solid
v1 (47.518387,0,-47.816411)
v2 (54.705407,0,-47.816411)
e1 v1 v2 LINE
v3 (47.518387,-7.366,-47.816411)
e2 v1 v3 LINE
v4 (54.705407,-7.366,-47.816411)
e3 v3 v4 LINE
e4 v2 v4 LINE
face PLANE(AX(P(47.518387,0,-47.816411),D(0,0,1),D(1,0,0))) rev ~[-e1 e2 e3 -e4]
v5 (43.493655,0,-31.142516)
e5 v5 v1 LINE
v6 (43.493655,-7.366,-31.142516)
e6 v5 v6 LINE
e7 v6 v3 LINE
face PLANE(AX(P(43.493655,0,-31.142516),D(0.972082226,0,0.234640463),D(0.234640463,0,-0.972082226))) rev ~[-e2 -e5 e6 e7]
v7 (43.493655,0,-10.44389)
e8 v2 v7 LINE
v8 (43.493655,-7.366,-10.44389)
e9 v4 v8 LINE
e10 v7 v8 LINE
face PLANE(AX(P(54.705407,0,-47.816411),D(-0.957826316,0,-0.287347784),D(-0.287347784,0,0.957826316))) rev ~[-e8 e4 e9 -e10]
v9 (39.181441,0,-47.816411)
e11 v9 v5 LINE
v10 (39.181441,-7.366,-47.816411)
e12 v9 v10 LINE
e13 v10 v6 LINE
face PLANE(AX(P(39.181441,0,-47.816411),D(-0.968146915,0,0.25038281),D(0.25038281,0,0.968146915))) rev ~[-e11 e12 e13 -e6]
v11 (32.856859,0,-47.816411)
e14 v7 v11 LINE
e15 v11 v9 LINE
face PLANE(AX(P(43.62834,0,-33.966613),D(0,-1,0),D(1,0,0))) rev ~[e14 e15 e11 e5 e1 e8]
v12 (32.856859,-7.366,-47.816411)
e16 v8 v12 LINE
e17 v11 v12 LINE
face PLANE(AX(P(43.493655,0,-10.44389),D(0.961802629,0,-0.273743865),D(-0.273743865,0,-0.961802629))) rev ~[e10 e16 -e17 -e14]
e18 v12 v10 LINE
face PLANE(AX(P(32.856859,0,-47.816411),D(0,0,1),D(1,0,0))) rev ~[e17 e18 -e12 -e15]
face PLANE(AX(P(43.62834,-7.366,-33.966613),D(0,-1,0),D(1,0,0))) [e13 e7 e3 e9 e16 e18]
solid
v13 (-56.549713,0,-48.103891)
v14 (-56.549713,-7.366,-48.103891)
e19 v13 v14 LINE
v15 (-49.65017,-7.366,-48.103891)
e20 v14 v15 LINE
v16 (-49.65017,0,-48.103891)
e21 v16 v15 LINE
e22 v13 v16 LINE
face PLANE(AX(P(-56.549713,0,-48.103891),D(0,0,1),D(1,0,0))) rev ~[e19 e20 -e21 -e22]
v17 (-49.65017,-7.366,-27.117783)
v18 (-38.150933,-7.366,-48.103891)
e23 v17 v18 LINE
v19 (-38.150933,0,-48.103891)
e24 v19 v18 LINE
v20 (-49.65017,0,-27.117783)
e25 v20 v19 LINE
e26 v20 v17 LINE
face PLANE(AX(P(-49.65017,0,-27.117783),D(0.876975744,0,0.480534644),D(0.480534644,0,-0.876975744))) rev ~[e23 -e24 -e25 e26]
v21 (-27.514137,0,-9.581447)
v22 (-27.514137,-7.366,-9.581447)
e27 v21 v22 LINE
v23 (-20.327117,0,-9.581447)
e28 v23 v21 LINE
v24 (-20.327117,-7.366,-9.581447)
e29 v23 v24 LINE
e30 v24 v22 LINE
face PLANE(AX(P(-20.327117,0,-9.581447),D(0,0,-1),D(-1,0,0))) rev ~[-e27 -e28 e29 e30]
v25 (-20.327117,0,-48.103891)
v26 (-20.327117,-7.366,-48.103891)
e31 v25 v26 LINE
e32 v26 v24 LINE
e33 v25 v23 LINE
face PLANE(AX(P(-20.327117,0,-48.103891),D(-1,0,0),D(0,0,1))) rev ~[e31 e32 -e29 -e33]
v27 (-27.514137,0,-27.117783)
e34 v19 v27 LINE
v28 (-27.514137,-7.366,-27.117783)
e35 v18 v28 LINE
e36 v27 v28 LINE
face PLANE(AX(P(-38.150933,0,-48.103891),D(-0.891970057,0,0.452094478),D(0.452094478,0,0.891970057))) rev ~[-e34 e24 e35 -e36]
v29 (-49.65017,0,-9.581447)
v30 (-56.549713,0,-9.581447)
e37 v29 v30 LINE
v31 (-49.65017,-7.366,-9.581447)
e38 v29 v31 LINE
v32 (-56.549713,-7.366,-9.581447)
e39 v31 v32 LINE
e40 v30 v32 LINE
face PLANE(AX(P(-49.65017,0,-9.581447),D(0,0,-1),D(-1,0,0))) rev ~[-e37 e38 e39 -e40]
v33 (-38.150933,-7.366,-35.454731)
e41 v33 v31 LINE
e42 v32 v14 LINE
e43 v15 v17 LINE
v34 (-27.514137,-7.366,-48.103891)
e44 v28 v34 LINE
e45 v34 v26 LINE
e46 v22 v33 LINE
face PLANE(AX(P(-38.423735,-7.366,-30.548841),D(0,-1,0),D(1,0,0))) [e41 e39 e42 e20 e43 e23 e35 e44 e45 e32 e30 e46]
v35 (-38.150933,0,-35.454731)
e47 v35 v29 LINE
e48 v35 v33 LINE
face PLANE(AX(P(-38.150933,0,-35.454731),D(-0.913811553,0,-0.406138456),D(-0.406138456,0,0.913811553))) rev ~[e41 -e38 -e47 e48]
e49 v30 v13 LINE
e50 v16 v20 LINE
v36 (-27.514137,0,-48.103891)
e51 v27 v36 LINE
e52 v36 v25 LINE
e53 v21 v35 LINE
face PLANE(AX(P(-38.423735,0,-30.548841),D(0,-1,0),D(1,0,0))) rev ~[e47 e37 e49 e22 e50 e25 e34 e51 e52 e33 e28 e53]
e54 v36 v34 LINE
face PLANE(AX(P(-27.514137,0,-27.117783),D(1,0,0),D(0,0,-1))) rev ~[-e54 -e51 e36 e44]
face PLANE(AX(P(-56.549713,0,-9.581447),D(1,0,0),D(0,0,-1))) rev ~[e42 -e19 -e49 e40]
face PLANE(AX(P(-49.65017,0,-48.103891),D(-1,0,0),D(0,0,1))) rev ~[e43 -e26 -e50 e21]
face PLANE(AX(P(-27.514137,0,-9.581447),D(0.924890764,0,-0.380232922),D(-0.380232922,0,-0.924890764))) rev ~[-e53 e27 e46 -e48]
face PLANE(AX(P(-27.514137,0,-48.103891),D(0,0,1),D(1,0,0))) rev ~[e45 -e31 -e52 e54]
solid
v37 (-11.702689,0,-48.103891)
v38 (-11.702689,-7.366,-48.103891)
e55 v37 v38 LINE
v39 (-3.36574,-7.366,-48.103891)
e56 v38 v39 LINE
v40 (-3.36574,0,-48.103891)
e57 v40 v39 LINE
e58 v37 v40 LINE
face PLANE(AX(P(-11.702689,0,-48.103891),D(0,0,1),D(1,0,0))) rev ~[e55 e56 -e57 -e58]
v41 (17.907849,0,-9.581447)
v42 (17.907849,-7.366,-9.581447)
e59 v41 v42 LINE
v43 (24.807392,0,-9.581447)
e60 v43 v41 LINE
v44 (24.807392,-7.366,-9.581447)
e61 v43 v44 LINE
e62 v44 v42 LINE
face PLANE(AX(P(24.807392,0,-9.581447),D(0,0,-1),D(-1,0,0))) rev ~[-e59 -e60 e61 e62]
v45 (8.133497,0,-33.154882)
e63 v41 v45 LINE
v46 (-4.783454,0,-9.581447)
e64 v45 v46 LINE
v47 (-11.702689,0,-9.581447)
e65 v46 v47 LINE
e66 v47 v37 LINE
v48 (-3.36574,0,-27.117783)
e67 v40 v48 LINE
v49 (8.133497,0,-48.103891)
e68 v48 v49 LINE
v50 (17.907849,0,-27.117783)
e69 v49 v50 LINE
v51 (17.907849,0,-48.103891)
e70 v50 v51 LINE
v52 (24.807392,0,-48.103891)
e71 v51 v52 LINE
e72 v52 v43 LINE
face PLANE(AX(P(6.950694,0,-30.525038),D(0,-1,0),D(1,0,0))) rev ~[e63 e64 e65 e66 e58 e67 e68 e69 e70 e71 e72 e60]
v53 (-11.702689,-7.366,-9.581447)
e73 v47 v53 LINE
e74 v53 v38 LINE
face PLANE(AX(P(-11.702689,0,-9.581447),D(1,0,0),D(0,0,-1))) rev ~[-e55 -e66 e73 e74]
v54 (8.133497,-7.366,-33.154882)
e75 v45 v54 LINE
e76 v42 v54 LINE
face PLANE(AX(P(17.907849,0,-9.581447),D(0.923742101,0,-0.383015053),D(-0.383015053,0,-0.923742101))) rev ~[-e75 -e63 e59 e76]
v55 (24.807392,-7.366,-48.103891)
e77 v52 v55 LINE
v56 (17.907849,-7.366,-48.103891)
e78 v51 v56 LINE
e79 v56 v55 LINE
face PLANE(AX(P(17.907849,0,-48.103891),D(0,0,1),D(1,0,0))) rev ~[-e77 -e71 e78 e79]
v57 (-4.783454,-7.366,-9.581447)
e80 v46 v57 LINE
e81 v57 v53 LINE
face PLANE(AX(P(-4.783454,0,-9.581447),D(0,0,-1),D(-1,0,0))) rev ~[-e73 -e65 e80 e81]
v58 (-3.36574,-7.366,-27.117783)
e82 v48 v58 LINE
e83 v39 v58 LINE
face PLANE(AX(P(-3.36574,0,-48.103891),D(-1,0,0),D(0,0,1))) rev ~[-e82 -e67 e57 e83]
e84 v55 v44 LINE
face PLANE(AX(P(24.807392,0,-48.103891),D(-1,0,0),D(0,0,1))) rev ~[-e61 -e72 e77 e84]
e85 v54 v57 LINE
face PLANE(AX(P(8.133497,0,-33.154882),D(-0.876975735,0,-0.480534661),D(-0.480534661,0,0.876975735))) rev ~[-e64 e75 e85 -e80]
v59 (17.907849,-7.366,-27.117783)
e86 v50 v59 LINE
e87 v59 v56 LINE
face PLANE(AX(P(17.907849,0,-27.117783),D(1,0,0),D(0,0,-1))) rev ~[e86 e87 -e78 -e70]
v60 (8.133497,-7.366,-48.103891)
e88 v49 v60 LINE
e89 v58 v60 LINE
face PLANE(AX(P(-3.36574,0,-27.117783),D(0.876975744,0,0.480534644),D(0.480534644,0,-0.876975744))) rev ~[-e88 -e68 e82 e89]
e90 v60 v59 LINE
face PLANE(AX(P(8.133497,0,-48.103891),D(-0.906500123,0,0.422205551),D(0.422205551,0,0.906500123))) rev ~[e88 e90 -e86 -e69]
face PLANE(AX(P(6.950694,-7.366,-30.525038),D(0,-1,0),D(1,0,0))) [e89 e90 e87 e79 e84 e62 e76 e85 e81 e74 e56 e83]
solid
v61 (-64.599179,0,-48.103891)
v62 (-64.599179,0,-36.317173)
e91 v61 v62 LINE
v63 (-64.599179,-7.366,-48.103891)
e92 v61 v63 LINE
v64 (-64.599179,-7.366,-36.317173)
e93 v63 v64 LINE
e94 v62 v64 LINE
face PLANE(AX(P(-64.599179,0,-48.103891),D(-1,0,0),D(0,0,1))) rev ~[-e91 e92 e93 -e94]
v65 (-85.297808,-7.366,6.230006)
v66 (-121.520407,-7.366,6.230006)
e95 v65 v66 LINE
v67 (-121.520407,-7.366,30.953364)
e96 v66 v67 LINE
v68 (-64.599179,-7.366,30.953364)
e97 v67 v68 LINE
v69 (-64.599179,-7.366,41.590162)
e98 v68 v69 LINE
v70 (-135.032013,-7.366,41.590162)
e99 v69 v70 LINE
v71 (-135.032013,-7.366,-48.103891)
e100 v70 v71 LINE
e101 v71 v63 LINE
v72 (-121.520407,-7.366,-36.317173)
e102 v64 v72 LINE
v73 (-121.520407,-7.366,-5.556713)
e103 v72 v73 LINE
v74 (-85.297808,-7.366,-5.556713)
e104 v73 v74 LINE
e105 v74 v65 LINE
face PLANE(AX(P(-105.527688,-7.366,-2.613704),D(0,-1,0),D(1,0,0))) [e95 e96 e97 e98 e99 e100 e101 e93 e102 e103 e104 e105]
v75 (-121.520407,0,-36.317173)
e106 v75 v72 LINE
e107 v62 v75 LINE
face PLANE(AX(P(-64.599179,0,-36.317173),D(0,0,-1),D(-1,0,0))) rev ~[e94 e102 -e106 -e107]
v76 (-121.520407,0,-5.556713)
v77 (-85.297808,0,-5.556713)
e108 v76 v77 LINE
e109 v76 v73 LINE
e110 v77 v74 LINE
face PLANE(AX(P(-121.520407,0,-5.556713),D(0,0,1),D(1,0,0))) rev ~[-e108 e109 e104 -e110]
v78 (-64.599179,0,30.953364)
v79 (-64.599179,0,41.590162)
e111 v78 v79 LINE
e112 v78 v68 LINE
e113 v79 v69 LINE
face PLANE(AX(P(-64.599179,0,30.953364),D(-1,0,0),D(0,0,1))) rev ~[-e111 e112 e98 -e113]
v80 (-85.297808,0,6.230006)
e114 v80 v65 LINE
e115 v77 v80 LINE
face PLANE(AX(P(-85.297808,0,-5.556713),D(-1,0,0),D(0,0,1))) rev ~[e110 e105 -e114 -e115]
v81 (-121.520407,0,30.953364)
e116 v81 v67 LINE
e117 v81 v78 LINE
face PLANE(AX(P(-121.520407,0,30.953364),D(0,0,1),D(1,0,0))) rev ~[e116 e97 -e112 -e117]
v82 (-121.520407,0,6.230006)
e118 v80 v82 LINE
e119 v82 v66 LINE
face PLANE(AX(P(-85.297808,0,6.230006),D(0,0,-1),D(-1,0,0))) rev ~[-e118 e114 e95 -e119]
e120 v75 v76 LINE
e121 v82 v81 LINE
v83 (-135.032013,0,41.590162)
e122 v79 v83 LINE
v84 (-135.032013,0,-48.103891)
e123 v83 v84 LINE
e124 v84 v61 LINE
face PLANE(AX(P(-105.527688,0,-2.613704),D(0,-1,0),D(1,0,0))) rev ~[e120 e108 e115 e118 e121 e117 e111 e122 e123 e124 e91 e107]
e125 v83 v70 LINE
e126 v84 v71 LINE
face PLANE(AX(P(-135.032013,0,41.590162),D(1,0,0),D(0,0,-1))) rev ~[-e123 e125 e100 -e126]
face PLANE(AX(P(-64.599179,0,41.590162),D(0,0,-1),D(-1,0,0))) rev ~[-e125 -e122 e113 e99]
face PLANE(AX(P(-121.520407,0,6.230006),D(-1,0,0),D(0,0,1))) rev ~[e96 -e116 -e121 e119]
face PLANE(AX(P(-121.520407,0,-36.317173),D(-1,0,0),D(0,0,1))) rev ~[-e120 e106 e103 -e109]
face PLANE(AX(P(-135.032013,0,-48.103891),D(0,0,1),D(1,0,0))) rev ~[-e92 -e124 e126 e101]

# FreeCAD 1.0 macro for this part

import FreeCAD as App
import Part
import Sketcher
from FreeCAD import Vector
Q = App.Units.Quantity


def add_polygon(sketch, points):
    """Adds a closed chain of lines whose ends are joined by coincident constraints."""
    first, n = sketch.GeometryCount, len(points)
    for a, b in zip(points, points[1:] + points[:1]):
        sketch.addGeometry(Part.LineSegment(App.Vector(*a, 0), App.Vector(*b, 0)), False)
    for i in range(n):
        sketch.addConstraint(Sketcher.Constraint("Coincident", first + i, 2, first + (i + 1) % n, 1))

doc = App.newDocument("Part")
body = doc.addObject("PartDesign::Body", "Body")
body.AllowCompound = True

sketch1 = body.newObject("Sketcher::SketchObject", "Sketch")
sketch1.AttachmentSupport = (doc.getObject("XZ_Plane"), [""])
sketch1.MapMode = "FlatFace"
add_polygon(sketch1, [(-65, 42), (-135, 42), (-135, -48), (-65, -48), (-65, -36), (-122, -36), (-122, -6), (-85, -6), (-85, 6), (-122, 6), (-122, 31), (-65, 31)])
add_polygon(sketch1, [(-50, -10), (-57, -10), (-57, -48), (-50, -48), (-50, -27), (-38, -48), (-28, -27), (-28, -48), (-20, -48), (-20, -10), (-28, -10), (-38, -35)])
add_polygon(sketch1, [(-5, -10), (-12, -10), (-12, -48), (-3, -48), (-3, -27), (8, -48), (18, -27), (18, -48), (25, -48), (25, -10), (18, -10), (8, -33)])
add_polygon(sketch1, [(43, -10), (33, -48), (39, -48), (43, -31), (48, -48), (55, -48)])
sketch1.addConstraint([
    Sketcher.Constraint("Horizontal", 0),
    Sketcher.Constraint("Vertical", 1),
    Sketcher.Constraint("Horizontal", 2),
    Sketcher.Constraint("Vertical", 3),
    Sketcher.Constraint("Horizontal", 4),
    Sketcher.Constraint("Vertical", 5),
    Sketcher.Constraint("Horizontal", 6),
    Sketcher.Constraint("Vertical", 7),
    Sketcher.Constraint("Horizontal", 8),
    Sketcher.Constraint("Vertical", 9),
    Sketcher.Constraint("Horizontal", 10),
    Sketcher.Constraint("Vertical", 11),
    Sketcher.Constraint("Horizontal", 12),
    Sketcher.Constraint("Vertical", 13),
    Sketcher.Constraint("Horizontal", 14),
    Sketcher.Constraint("Vertical", 15),
    Sketcher.Constraint("Vertical", 18),
    Sketcher.Constraint("Horizontal", 19),
    Sketcher.Constraint("Vertical", 20),
    Sketcher.Constraint("Horizontal", 21),
    Sketcher.Constraint("Horizontal", 24),
    Sketcher.Constraint("Vertical", 25),
    Sketcher.Constraint("Horizontal", 26),
    Sketcher.Constraint("Vertical", 27),
    Sketcher.Constraint("Vertical", 30),
    Sketcher.Constraint("Horizontal", 31),
    Sketcher.Constraint("Vertical", 32),
    Sketcher.Constraint("Horizontal", 33),
    Sketcher.Constraint("Horizontal", 37),
    Sketcher.Constraint("Horizontal", 40),
    Sketcher.Constraint("Parallel", 16, 28),
    Sketcher.Constraint("Parallel", 28, 35),
    Sketcher.Constraint("Horizontal", 2, 2, 13, 2),
    Sketcher.Constraint("Horizontal", 14, 2, 16, 2),
    Sketcher.Constraint("Horizontal", 15, 2, 17, 2),
    Sketcher.Constraint("Horizontal", 16, 2, 18, 2),
    Sketcher.Constraint("Horizontal", 12, 2, 20, 2),
    Sketcher.Constraint("Horizontal", 23, 2, 24, 2),
    Sketcher.Constraint("Horizontal", 19, 2, 25, 2),
    Sketcher.Constraint("Horizontal", 17, 2, 27, 2),
    Sketcher.Constraint("Horizontal", 26, 2, 28, 2),
    Sketcher.Constraint("Horizontal", 27, 2, 29, 2),
    Sketcher.Constraint("Horizontal", 28, 2, 30, 2),
    Sketcher.Constraint("Horizontal", 24, 2, 32, 2),
    Sketcher.Constraint("Horizontal", 37, 2, 39, 2),
    Sketcher.Constraint("Vertical", 5, 2, 8, 2),
    Sketcher.Constraint("Vertical", 3, 2, 10, 2),
    Sketcher.Constraint("Vertical", 18, 2, 21, 2),
    Sketcher.Constraint("Vertical", 16, 2, 22, 2),
    Sketcher.Constraint("Vertical", 15, 2, 23, 2),
    Sketcher.Constraint("Vertical", 30, 2, 33, 2),
    Sketcher.Constraint("Vertical", 28, 2, 34, 2),
    Sketcher.Constraint("Vertical", 38, 2, 41, 2),
    Sketcher.Constraint("Equal", 14, 31),
    Sketcher.Constraint("Equal", 21, 40),
    Sketcher.Constraint("Equal", 3, 7),
    Sketcher.Constraint("DistanceX", 6, 1, 6, 2, Q("36.222599 mm")),
    Sketcher.Constraint("Distance", 34, Q("25.519498 mm")),
    Sketcher.Constraint("DistanceX", 19, 1, 19, 2, Q("7.18702 mm")),
    Sketcher.Constraint("DistanceX", 26, 1, 26, 2, Q("8.336949 mm")),
    Sketcher.Constraint("DistanceX", 37, 1, 37, 2, Q("6.324582 mm")),
    Sketcher.Constraint("DistanceY", 5, 1, 5, 2, Q("30.76046 mm")),
    Sketcher.Constraint("DistanceY", 7, 1, 7, 2, Q("11.786719 mm")),
    Sketcher.Constraint("DistanceY", 9, 1, 9, 2, Q("24.723358 mm")),
    Sketcher.Constraint("DistanceY", 34, 2, 29, 2, Q("6.037099 mm")),
    Sketcher.Constraint("Distance", 16, Q("23.930089 mm")),
    Sketcher.Constraint("Distance", 22, Q("27.974421 mm")),
    Sketcher.Constraint("Distance", 23, Q("28.313588 mm")),
    Sketcher.Constraint("Distance", 39, Q("17.152762 mm")),
    Sketcher.Constraint("DistanceX", 0, 2, 0, 1, Q("70.432834 mm")),
    Sketcher.Constraint("DistanceX", 4, 2, 4, 1, Q("56.921228 mm")),
    Sketcher.Constraint("DistanceX", 12, 2, 12, 1, Q("6.899543 mm")),
    Sketcher.Constraint("DistanceX", 24, 2, 24, 1, Q("6.919235 mm")),
    Sketcher.Constraint("DistanceY", 1, 2, 1, 1, Q("89.694053 mm")),
    Sketcher.Constraint("DistanceY", 13, 2, 13, 1, Q("38.522444 mm")),
    Sketcher.Constraint("DistanceY", 1, 2, -1, 1, Q("48.103891 mm")),
    Sketcher.Constraint("DistanceX", 2, 2, -1, 1, Q("64.599179 mm")),
    Sketcher.Constraint("DistanceX", 14, 2, -1, 1, Q("49.65017 mm")),
    Sketcher.Constraint("DistanceX", 24, 2, -1, 1, Q("11.702689 mm")),
    Sketcher.Constraint("DistanceX", -1, 1, 36, 2, Q("32.856859 mm")),
    Sketcher.Constraint("DistanceY", 36, 2, -1, 1, Q("47.816411 mm")),
    Sketcher.Constraint("DistanceY", 41, 2, -1, 1, Q("10.44389 mm")),
    Sketcher.Constraint("DistanceY", 38, 2, 32, 2, Q("21.561069 mm")),
    Sketcher.Constraint("DistanceX", 36, 2, 40, 2, Q("21.848548 mm")),
])
pad1 = body.newObject("PartDesign::Pad", "Pad")
pad1.Profile = sketch1
pad1.Length = Q("0.29 in")

doc.recompute()
